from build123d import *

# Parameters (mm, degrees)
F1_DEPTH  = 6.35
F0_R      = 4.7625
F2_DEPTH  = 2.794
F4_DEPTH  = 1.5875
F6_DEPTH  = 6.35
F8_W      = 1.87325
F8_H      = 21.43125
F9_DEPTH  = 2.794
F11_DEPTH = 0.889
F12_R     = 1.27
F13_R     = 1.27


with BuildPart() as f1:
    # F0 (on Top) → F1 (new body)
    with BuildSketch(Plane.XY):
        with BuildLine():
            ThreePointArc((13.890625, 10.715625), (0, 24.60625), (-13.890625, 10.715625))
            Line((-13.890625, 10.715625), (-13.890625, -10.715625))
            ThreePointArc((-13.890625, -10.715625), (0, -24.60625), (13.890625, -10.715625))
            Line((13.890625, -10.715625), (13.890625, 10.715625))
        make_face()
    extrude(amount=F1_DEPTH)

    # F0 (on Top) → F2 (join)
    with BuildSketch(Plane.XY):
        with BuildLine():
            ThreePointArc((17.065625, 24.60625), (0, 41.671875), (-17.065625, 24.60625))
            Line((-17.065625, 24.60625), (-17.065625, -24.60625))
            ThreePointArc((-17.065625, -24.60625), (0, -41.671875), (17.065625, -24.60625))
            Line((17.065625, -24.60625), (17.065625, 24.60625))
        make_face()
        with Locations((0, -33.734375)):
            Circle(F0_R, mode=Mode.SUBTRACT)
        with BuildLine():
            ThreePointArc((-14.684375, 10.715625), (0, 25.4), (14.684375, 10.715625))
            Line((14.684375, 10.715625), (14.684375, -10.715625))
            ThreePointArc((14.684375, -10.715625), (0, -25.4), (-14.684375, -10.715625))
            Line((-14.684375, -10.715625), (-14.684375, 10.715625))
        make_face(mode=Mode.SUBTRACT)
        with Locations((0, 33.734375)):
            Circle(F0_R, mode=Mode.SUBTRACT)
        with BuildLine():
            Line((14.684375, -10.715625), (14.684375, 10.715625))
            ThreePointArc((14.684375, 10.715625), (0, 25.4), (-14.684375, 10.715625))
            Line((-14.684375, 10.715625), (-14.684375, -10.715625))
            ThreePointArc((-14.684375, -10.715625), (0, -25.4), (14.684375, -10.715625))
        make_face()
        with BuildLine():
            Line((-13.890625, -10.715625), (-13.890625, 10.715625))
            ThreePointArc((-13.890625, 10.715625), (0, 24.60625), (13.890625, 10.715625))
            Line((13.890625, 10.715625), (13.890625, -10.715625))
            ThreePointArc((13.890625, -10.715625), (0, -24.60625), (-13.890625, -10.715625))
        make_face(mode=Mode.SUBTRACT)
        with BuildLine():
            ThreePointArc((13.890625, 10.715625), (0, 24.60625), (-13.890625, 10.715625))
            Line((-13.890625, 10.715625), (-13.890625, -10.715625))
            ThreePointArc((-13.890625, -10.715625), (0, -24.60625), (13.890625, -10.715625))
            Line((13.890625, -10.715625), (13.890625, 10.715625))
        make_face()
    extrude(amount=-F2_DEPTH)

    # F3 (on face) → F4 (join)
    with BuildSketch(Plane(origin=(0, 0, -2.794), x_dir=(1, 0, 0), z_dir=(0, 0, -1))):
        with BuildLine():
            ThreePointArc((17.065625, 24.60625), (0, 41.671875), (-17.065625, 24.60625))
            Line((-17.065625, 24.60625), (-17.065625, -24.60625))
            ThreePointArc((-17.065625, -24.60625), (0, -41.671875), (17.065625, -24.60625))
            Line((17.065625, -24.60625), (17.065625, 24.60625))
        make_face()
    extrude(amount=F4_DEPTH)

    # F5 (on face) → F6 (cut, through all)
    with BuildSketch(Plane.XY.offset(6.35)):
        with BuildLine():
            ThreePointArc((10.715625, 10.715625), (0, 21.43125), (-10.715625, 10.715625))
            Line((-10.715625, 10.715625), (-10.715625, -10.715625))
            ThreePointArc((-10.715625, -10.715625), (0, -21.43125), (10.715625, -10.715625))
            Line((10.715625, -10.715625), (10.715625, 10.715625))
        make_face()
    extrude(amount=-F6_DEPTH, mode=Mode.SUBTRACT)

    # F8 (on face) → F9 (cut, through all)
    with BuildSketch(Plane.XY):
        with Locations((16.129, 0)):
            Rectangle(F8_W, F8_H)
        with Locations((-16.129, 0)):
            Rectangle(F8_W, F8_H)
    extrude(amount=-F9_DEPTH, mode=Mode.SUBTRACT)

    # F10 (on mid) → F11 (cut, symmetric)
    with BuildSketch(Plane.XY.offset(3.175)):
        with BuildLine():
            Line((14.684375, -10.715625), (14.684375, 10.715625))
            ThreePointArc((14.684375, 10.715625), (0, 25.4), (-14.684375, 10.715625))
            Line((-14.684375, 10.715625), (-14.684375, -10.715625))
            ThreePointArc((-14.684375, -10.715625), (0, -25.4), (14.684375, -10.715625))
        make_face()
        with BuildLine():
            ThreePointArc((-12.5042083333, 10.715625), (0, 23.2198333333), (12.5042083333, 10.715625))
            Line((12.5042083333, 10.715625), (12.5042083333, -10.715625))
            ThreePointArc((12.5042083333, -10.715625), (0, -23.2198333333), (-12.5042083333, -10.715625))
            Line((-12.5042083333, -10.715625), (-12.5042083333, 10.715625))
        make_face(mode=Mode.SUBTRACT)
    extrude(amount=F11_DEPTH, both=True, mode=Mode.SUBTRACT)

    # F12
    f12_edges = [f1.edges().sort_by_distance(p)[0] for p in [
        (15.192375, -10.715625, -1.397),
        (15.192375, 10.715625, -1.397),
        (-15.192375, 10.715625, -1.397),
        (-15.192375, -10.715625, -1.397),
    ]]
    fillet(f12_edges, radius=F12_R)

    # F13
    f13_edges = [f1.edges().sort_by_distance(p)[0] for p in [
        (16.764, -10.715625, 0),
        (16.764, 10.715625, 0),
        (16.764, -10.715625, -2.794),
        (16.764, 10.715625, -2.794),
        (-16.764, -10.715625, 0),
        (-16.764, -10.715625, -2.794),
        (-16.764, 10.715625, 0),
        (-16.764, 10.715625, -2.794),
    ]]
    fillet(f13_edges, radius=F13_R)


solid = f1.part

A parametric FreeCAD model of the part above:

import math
import FreeCAD as App
import Part
import Sketcher
from FreeCAD import Vector
Q = App.Units.Quantity


def edges_at(feature, points):
    """Names of the edges that pass closest to the given points."""
    edges = feature.Shape.Edges
    near = lambda p: min(range(len(edges)), key=lambda i: edges[i].distToShape(Part.Vertex(*p))[0])
    return sorted({f"Edge{near(p) + 1}" for p in points})


def add_polygon(sketch, points):
    """Adds a closed chain of lines whose ends are joined by coincident constraints."""
    first, n = sketch.GeometryCount, len(points)
    for a, b in zip(points, points[1:] + points[:1]):
        sketch.addGeometry(Part.LineSegment(App.Vector(*a, 0), App.Vector(*b, 0)), False)
    for i in range(n):
        sketch.addConstraint(Sketcher.Constraint("Coincident", first + i, 2, first + (i + 1) % n, 1))

doc = App.newDocument("Part")
body = doc.addObject("PartDesign::Body", "Body")

# Sketch on XY plane
sketch1 = body.newObject("Sketcher::SketchObject", "Sketch")
sketch1.AttachmentSupport = (doc.getObject("XY_Plane"), [""])
sketch1.MapMode = "FlatFace"
sketch1.addGeometry([
    Part.ArcOfCircle(Part.Circle(Vector(0, 11, 0), Vector(0, 0, 1), 14), math.radians(0), math.radians(180)),
    Part.LineSegment(Vector(-14, 11, 0), Vector(-14, -11, 0)),
    Part.ArcOfCircle(Part.Circle(Vector(0, -11, 0), Vector(0, 0, 1), 14), math.radians(180), math.radians(360)),
    Part.LineSegment(Vector(14, -11, 0), Vector(14, 11, 0)),
], False)
sketch1.addConstraint([
    Sketcher.Constraint("Tangent", 0, 2, 1, 1),
    Sketcher.Constraint("Tangent", 1, 2, 2, 1),
    Sketcher.Constraint("Tangent", 2, 2, 3, 1),
    Sketcher.Constraint("Tangent", 3, 2, 0, 1),
    Sketcher.Constraint("Vertical", 1),
    Sketcher.Constraint("Vertical", 3),
    Sketcher.Constraint("Symmetric", 0, 3, 2, 3, -1, 1),
    Sketcher.Constraint("Radius", 0, Q("0.546875 in")),
    Sketcher.Constraint("DistanceY", 1, 2, 1, 1, Q("0.84375 in")),
])
pad1 = body.newObject("PartDesign::Pad", "Pad")
pad1.Profile = sketch1
pad1.Length = Q("0.25 in")

# Sketch on XY plane
sketch2 = body.newObject("Sketcher::SketchObject", "Sketch001")
sketch2.AttachmentSupport = (doc.getObject("XY_Plane"), [""])
sketch2.MapMode = "FlatFace"
sketch2.addGeometry([
    Part.ArcOfCircle(Part.Circle(Vector(0, 24.6, 0), Vector(0, 0, 1), 17.1), math.radians(0), math.radians(180)),  # 0
    Part.LineSegment(Vector(-17.1, 24.6, 0), Vector(-17.1, -24.6, 0)),  # 1
    Part.ArcOfCircle(Part.Circle(Vector(0, -24.6, 0), Vector(0, 0, 1), 17.1), math.radians(180), math.radians(360)),  # 2
    Part.LineSegment(Vector(17.1, -24.6, 0), Vector(17.1, 24.6, 0)),  # 3
    Part.Circle(Vector(0, -33.7, 0), Vector(0, 0, 1), 4.8),  # 4
    Part.Circle(Vector(0, 33.7, 0), Vector(0, 0, 1), 4.8),  # 5
], False)
sketch2.addConstraint([
    Sketcher.Constraint("Tangent", 0, 2, 1, 1),
    Sketcher.Constraint("Tangent", 1, 2, 2, 1),
    Sketcher.Constraint("Tangent", 2, 2, 3, 1),
    Sketcher.Constraint("Tangent", 3, 2, 0, 1),
    Sketcher.Constraint("Vertical", 1),
    Sketcher.Constraint("Vertical", 3),
    Sketcher.Constraint("Equal", 4, 5),
    Sketcher.Constraint("Symmetric", 0, 3, 2, 3, -1, 1),
    Sketcher.Constraint("Symmetric", 4, 3, 5, 3, -1, 1),
    Sketcher.Constraint("PointOnObject", 4, 3, -2),
    Sketcher.Constraint("Diameter", 4, Q("0.375 in")),
    Sketcher.Constraint("Radius", 0, Q("0.671875 in")),
    Sketcher.Constraint("DistanceY", 1, 2, 1, 1, Q("1.9375 in")),
    Sketcher.Constraint("DistanceY", 4, 3, -1, 1, Q("1.328125 in")),
])
pad2 = body.newObject("PartDesign::Pad", "Pad001")
pad2.Profile = sketch2
pad2.Length = Q("0.11 in")
pad2.Reversed = True

# Sketch on XY plane
sketch3 = body.newObject("Sketcher::SketchObject", "Sketch002")
sketch3.AttachmentSupport = (doc.getObject("XY_Plane"), [""])
sketch3.MapMode = "FlatFace"
sketch3.AttachmentOffset = App.Placement(Vector(0, 0, -0.11 * 25.4), App.Rotation())
sketch3.addGeometry([
    Part.ArcOfCircle(Part.Circle(Vector(0, -25, 0), Vector(0, 0, 1), 17), math.radians(180), math.radians(360)),
    Part.LineSegment(Vector(-17, -25, 0), Vector(-17, 25, 0)),
    Part.ArcOfCircle(Part.Circle(Vector(0, 25, 0), Vector(0, 0, 1), 17), math.radians(0), math.radians(180)),
    Part.LineSegment(Vector(17, 25, 0), Vector(17, -25, 0)),
], False)
sketch3.addConstraint([
    Sketcher.Constraint("Tangent", 0, 1, 1, 1),
    Sketcher.Constraint("Tangent", 1, 2, 2, 2),
    Sketcher.Constraint("Tangent", 2, 1, 3, 1),
    Sketcher.Constraint("Tangent", 3, 2, 0, 2),
    Sketcher.Constraint("Vertical", 1),
    Sketcher.Constraint("Vertical", 3),
    Sketcher.Constraint("Symmetric", 0, 3, 2, 3, -1, 1),
    Sketcher.Constraint("Radius", 0, Q("0.671875 in")),
    Sketcher.Constraint("DistanceY", 1, 1, 1, 2, Q("1.9375 in")),
])
pad3 = body.newObject("PartDesign::Pad", "Pad002")
pad3.Profile = sketch3
pad3.Length = Q("0.0625 in")
pad3.Reversed = True

# Sketch on XY plane
sketch4 = body.newObject("Sketcher::SketchObject", "Sketch003")
sketch4.AttachmentSupport = (doc.getObject("XY_Plane"), [""])
sketch4.MapMode = "FlatFace"
sketch4.AttachmentOffset = App.Placement(Vector(0, 0, 0.25 * 25.4), App.Rotation())
sketch4.addGeometry([
    Part.ArcOfCircle(Part.Circle(Vector(0, 11, 0), Vector(0, 0, 1), 11), math.radians(0), math.radians(180)),
    Part.LineSegment(Vector(-11, 11, 0), Vector(-11, -11, 0)),
    Part.ArcOfCircle(Part.Circle(Vector(0, -11, 0), Vector(0, 0, 1), 11), math.radians(180), math.radians(360)),
    Part.LineSegment(Vector(11, -11, 0), Vector(11, 11, 0)),
], False)
sketch4.addConstraint([
    Sketcher.Constraint("Tangent", 0, 2, 1, 1),
    Sketcher.Constraint("Tangent", 1, 2, 2, 1),
    Sketcher.Constraint("Tangent", 2, 2, 3, 1),
    Sketcher.Constraint("Tangent", 3, 2, 0, 1),
    Sketcher.Constraint("Vertical", 1),
    Sketcher.Constraint("Vertical", 3),
    Sketcher.Constraint("Symmetric", 0, 3, 2, 3, -1, 1),
    Sketcher.Constraint("Radius", 0, Q("0.421875 in")),
    Sketcher.Constraint("DistanceY", 1, 2, 1, 1, Q("0.84375 in")),
])
pocket1 = body.newObject("PartDesign::Pocket", "Pocket")
pocket1.Profile = sketch4
pocket1.Length = Q("0.25 in")

# Sketch on XY plane
sketch5 = body.newObject("Sketcher::SketchObject", "Sketch004")
sketch5.AttachmentSupport = (doc.getObject("XY_Plane"), [""])
sketch5.MapMode = "FlatFace"
add_polygon(sketch5, [(15.2, 10.7), (15.2, -10.7), (17.1, -10.7), (17.1, 10.7)])  # lines 0-3
add_polygon(sketch5, [(-17.1, 10.7), (-17.1, -10.7), (-15.2, -10.7), (-15.2, 10.7)])  # lines 4-7
sketch5.addConstraint([
    Sketcher.Constraint("Vertical", 0),
    Sketcher.Constraint("Horizontal", 1),
    Sketcher.Constraint("Vertical", 2),
    Sketcher.Constraint("Horizontal", 3),
    Sketcher.Constraint("Vertical", 4),
    Sketcher.Constraint("Horizontal", 5),
    Sketcher.Constraint("Vertical", 6),
    Sketcher.Constraint("Horizontal", 7),
    Sketcher.Constraint("Symmetric", 2, 2, 4, 2, -1, 1),
    Sketcher.Constraint("Symmetric", 0, 2, 6, 2, -1, 1),
    Sketcher.Constraint("Horizontal", 1, 2, 4, 2),
    Sketcher.Constraint("DistanceY", 0, 2, 0, 1, Q("0.84375 in")),
    Sketcher.Constraint("DistanceX", 4, 2, 0, 2, Q("1.27 in")),
    Sketcher.Constraint("DistanceX", -1, 1, 1, 2, Q("0.671875 in")),
])
pocket2 = body.newObject("PartDesign::Pocket", "Pocket001")
pocket2.Profile = sketch5
pocket2.Length = Q("0.11 in")

# Sketch on XY plane
sketch6 = body.newObject("Sketcher::SketchObject", "Sketch005")
sketch6.AttachmentSupport = (doc.getObject("XY_Plane"), [""])
sketch6.MapMode = "FlatFace"
sketch6.AttachmentOffset = App.Placement(Vector(0, 0, 0.125 * 25.4), App.Rotation())
sketch6.addGeometry([
    Part.LineSegment(Vector(15, -11, 0), Vector(15, 11, 0)),  # 0
    Part.ArcOfCircle(Part.Circle(Vector(0, 11, 0), Vector(0, 0, 1), 15), math.radians(0), math.radians(180)),  # 1
    Part.LineSegment(Vector(-15, 11, 0), Vector(-15, -11, 0)),  # 2
    Part.ArcOfCircle(Part.Circle(Vector(0, -11, 0), Vector(0, 0, 1), 15), math.radians(180), math.radians(360)),  # 3
    Part.LineSegment(Vector(-13, -11, 0), Vector(-13, 11, 0)),  # 4
    Part.ArcOfCircle(Part.Circle(Vector(0, 11, 0), Vector(0, 0, 1), 13), math.radians(0), math.radians(180)),  # 5
    Part.LineSegment(Vector(13, 11, 0), Vector(13, -11, 0)),  # 6
    Part.ArcOfCircle(Part.Circle(Vector(0, -11, 0), Vector(0, 0, 1), 13), math.radians(180), math.radians(360)),  # 7
], False)
sketch6.addConstraint([
    Sketcher.Constraint("Tangent", 0, 2, 1, 1),
    Sketcher.Constraint("Tangent", 1, 2, 2, 1),
    Sketcher.Constraint("Tangent", 2, 2, 3, 1),
    Sketcher.Constraint("Tangent", 3, 2, 0, 1),
    Sketcher.Constraint("Tangent", 4, 2, 5, 2),
    Sketcher.Constraint("Tangent", 5, 1, 6, 1),
    Sketcher.Constraint("Tangent", 6, 2, 7, 2),
    Sketcher.Constraint("Tangent", 7, 1, 4, 1),
    Sketcher.Constraint("Vertical", 0),
    Sketcher.Constraint("Vertical", 2),
    Sketcher.Constraint("Vertical", 4),
    Sketcher.Constraint("Vertical", 6),
    Sketcher.Constraint("Coincident", 5, 3, 1, 3),
    Sketcher.Constraint("Symmetric", 1, 3, 3, 3, -1, 1),
    Sketcher.Constraint("Horizontal", 7, 3, 2, 2),
    Sketcher.Constraint("Radius", 1, Q("0.578125 in")),
    Sketcher.Constraint("DistanceY", 0, 1, 0, 2, Q("0.84375 in")),
    Sketcher.Constraint("Radius", 5, Q("12.504208 mm")),
])
pocket3 = body.newObject("PartDesign::Pocket", "Pocket002")
pocket3.Profile = sketch6
pocket3.Length = Q("0.07 in")
pocket3.Midplane = True
doc.recompute()

fillet = body.newObject("PartDesign::Fillet", "Fillet")
fillet.Base = (pocket3, edges_at(pocket3, [
    (15.192, -10.716, -1.397),
    (15.192, 10.716, -1.397),
    (-15.192, 10.716, -1.397),
    (-15.192, -10.716, -1.397),
]))
fillet.Radius = Q("0.05 in")
doc.recompute()

fillet2 = body.newObject("PartDesign::Fillet", "Fillet001")
fillet2.Base = (fillet, edges_at(fillet, [
    (16.764, -10.716, 0),
    (16.764, 10.716, 0),
    (16.764, -10.716, -2.794),
    (16.764, 10.716, -2.794),
    (-16.764, -10.716, 0),
    (-16.764, -10.716, -2.794),
    (-16.764, 10.716, 0),
    (-16.764, 10.716, -2.794),
]))
fillet2.Radius = Q("0.05 in")

doc.recompute()
